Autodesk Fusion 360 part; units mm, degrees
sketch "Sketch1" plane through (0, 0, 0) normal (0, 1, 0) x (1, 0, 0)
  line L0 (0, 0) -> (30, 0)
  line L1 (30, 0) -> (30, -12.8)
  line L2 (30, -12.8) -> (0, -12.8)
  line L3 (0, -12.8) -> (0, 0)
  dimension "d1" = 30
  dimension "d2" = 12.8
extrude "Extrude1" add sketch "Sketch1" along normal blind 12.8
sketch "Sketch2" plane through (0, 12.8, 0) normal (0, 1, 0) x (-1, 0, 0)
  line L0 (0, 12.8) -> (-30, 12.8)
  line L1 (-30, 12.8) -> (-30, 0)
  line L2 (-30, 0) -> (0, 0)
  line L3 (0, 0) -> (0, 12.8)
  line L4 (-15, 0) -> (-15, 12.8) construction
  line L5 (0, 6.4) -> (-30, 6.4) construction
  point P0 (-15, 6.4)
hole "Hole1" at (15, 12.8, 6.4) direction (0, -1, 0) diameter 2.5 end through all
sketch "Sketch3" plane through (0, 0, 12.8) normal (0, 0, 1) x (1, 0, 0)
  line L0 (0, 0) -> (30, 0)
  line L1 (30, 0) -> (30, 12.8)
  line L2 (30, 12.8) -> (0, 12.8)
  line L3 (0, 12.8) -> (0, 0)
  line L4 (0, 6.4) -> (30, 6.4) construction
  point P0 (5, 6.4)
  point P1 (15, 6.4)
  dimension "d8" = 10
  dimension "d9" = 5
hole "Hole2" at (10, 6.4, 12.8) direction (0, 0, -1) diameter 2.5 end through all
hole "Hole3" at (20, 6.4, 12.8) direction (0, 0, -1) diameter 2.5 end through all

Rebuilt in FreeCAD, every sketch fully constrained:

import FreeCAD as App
import Part
import Sketcher

V = App.Vector
Q = App.Units.Quantity


def add_polygon(sketch, points):
    """Adds a closed chain of lines whose ends are joined by coincident constraints."""
    first, n = sketch.GeometryCount, len(points)
    for a, b in zip(points, points[1:] + points[:1]):
        sketch.addGeometry(Part.LineSegment(App.Vector(*a, 0), App.Vector(*b, 0)), False)
    for i in range(n):
        sketch.addConstraint(Sketcher.Constraint("Coincident", first + i, 2, first + (i + 1) % n, 1))

doc = App.newDocument("Part")
body = doc.addObject("PartDesign::Body", "Body")

# Sketch on XZ plane
sketch1 = doc.addObject("Sketcher::SketchObject", "Sketch")
body.addObject(sketch1)
sketch1.AttachmentSupport = (doc.XZ_Plane, [""])
sketch1.MapMode = "FlatFace"
add_polygon(sketch1, [(30, 0), (0, 0), (0, 13), (30, 13)])  # lines 0-3
sketch1.addConstraint([
    Sketcher.Constraint("Horizontal", 0),
    Sketcher.Constraint("Vertical", 1),
    Sketcher.Constraint("Horizontal", 2),
    Sketcher.Constraint("Vertical", 3),
    Sketcher.Constraint("Coincident", 0, 2, -1, 1),
    Sketcher.Constraint("DistanceX", 0, 2, 0, 1, Q("30 mm")),
    Sketcher.Constraint("DistanceY", 1, 1, 1, 2, Q("12.8 mm")),
])
pad1 = doc.addObject("PartDesign::Pad", "Pad")
body.addObject(pad1)
pad1.Profile = sketch1
pad1.Length = 12.8
pad1.Reversed = True

# Sketch on XZ plane
sketch2 = doc.addObject("Sketcher::SketchObject", "Sketch001")
body.addObject(sketch2)
sketch2.AttachmentSupport = (doc.XZ_Plane, [""])
sketch2.MapMode = "FlatFace"
sketch2.AttachmentOffset = App.Placement(V(0, 0, -12.8), App.Rotation())
sketch2.addGeometry(Part.Circle(V(15, 6.4, 0), V(0, 0, 1), 1.2), False)
sketch2.addConstraint([
    Sketcher.Constraint("Diameter", 0, Q("2.5 mm")),
    Sketcher.Constraint("DistanceX", -1, 1, 0, 3, Q("15 mm")),
    Sketcher.Constraint("DistanceY", -1, 1, 0, 3, Q("6.4 mm")),
])
doc.recompute()
hole = doc.addObject("PartDesign::Hole", "Hole")
body.addObject(hole)
hole.Profile = sketch2
hole.ThreadType = "None"
hole.Diameter = 2.5
hole.DepthType = "ThroughAll"
hole.Reversed = True

# Sketch on XY plane
sketch3 = doc.addObject("Sketcher::SketchObject", "Sketch002")
body.addObject(sketch3)
sketch3.AttachmentSupport = (doc.XY_Plane, [""])
sketch3.MapMode = "FlatFace"
sketch3.AttachmentOffset = App.Placement(V(0, 0, 12.8), App.Rotation())
sketch3.addGeometry(Part.Circle(V(10, 6.4, 0), V(0, 0, 1), 1.2), False)
sketch3.addConstraint([
    Sketcher.Constraint("Diameter", 0, Q("2.5 mm")),
    Sketcher.Constraint("DistanceX", -1, 1, 0, 3, Q("10 mm")),
    Sketcher.Constraint("DistanceY", -1, 1, 0, 3, Q("6.4 mm")),
])
doc.recompute()
hole2 = doc.addObject("PartDesign::Hole", "Hole001")
body.addObject(hole2)
hole2.Profile = sketch3
hole2.ThreadType = "None"
hole2.Diameter = 2.5
hole2.DepthType = "ThroughAll"

# Sketch on XY plane
sketch4 = doc.addObject("Sketcher::SketchObject", "Sketch003")
body.addObject(sketch4)
sketch4.AttachmentSupport = (doc.XY_Plane, [""])
sketch4.MapMode = "FlatFace"
sketch4.AttachmentOffset = App.Placement(V(0, 0, 12.8), App.Rotation())
sketch4.addGeometry(Part.Circle(V(20, 6.4, 0), V(0, 0, 1), 1.2), False)
sketch4.addConstraint([
    Sketcher.Constraint("Diameter", 0, Q("2.5 mm")),
    Sketcher.Constraint("DistanceX", -1, 1, 0, 3, Q("20 mm")),
    Sketcher.Constraint("DistanceY", -1, 1, 0, 3, Q("6.4 mm")),
])
doc.recompute()
hole3 = doc.addObject("PartDesign::Hole", "Hole002")
body.addObject(hole3)
hole3.Profile = sketch4
hole3.ThreadType = "None"
hole3.Diameter = 2.5
hole3.DepthType = "ThroughAll"

doc.recompute()
